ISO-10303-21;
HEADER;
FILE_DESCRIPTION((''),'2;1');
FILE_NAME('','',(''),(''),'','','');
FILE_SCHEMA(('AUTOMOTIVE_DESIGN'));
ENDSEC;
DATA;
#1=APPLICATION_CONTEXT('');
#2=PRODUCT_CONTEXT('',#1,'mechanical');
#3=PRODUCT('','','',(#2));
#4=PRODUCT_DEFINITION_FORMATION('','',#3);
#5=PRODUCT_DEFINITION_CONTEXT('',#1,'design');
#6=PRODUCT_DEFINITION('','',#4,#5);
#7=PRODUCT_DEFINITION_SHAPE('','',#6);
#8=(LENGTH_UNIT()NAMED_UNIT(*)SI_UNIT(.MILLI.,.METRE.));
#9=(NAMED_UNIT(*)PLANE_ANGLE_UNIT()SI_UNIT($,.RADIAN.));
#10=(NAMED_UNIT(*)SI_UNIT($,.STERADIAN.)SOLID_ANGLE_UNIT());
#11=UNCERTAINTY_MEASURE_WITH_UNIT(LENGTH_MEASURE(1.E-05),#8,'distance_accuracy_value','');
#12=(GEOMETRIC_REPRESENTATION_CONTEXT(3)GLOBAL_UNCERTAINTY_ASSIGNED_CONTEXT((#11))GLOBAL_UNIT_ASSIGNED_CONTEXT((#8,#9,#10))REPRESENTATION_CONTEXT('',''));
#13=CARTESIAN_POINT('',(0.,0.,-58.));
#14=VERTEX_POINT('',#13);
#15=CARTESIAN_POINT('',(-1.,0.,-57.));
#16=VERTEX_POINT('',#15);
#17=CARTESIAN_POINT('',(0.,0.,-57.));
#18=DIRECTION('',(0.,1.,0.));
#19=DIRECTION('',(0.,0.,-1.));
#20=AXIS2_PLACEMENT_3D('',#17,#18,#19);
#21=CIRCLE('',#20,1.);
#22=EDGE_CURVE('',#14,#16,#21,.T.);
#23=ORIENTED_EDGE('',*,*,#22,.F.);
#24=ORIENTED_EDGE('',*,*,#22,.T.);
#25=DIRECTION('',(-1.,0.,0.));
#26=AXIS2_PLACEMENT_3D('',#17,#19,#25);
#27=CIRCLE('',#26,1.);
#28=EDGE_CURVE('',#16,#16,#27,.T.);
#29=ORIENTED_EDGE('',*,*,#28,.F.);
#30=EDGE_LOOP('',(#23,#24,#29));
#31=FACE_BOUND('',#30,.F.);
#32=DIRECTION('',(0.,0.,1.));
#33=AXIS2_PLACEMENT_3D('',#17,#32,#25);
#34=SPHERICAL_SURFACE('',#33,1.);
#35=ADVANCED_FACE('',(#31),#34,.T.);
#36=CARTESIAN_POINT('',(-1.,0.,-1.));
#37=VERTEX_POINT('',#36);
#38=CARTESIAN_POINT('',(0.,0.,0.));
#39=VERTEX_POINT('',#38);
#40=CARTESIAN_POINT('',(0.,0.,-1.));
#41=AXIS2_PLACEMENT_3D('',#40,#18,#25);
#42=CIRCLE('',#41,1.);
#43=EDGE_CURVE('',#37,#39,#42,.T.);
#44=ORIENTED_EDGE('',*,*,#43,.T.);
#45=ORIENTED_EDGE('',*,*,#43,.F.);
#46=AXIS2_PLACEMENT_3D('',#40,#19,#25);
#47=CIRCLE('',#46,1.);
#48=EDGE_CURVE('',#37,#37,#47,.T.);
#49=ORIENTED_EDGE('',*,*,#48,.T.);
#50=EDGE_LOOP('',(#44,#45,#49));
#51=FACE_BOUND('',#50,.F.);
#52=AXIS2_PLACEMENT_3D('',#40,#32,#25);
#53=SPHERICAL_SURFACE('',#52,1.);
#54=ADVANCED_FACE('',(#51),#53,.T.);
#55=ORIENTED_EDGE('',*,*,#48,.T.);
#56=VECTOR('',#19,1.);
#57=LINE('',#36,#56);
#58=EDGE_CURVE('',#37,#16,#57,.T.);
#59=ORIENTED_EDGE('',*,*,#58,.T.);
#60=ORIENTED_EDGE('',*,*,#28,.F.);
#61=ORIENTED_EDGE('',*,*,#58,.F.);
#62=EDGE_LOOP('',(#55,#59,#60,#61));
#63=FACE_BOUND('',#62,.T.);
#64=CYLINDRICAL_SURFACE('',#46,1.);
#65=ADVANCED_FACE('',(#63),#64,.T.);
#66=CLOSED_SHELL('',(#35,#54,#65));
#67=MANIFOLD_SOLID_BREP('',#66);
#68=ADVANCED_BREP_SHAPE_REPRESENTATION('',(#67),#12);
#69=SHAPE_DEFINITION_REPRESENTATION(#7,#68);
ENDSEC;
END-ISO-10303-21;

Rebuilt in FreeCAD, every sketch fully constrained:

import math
import FreeCAD as App
import Part
import Sketcher

doc = App.newDocument("Part")
body = doc.addObject("PartDesign::Body", "Body")

sketch1 = body.newObject("Sketcher::SketchObject", "Sketch")
sketch1.AttachmentSupport = (doc.getObject("XZ_Plane"), [""])
sketch1.MapMode = "FlatFace"
sketch1.addGeometry(Part.LineSegment(App.Vector(-1, -57, 0), App.Vector(-1, -1, 0)), False)
sketch1.addGeometry(Part.ArcOfCircle(Part.Circle(App.Vector(0, -1, 0), App.Vector(0, 0, 1), 1), math.radians(90), math.radians(180)), False)
sketch1.addGeometry(Part.LineSegment(App.Vector(0, 0, 0), App.Vector(0, -58, 0)), False)
sketch1.addGeometry(Part.ArcOfCircle(Part.Circle(App.Vector(0, -57, 0), App.Vector(0, 0, 1), 1), math.radians(180), math.radians(270)), False)
sketch1.addConstraint(Sketcher.Constraint("Tangent", 0, 2, 1, 2))
sketch1.addConstraint(Sketcher.Constraint("Coincident", 1, 1, 2, 1))
sketch1.addConstraint(Sketcher.Constraint("Coincident", 2, 2, 3, 2))
sketch1.addConstraint(Sketcher.Constraint("Tangent", 3, 1, 0, 1))
sketch1.addConstraint(Sketcher.Constraint("Vertical", 0))
sketch1.addConstraint(Sketcher.Constraint("Vertical", 2))
sketch1.addConstraint(Sketcher.Constraint("Coincident", 1, 1, -1, 1))
sketch1.addConstraint(Sketcher.Constraint("Equal", 1, 3))
sketch1.addConstraint(Sketcher.Constraint("PointOnObject", 1, 3, -2))
sketch1.addConstraint(Sketcher.Constraint("Radius", 1, 1.0))
sketch1.addConstraint(Sketcher.Constraint("DistanceY", 2, 2, 2, 1, 58.0))
revolution = body.newObject("PartDesign::Revolution", "Revolution")
revolution.Profile = sketch1
revolution.ReferenceAxis = (sketch1, ["V_Axis"])
revolution.Angle = 360

doc.recompute()
